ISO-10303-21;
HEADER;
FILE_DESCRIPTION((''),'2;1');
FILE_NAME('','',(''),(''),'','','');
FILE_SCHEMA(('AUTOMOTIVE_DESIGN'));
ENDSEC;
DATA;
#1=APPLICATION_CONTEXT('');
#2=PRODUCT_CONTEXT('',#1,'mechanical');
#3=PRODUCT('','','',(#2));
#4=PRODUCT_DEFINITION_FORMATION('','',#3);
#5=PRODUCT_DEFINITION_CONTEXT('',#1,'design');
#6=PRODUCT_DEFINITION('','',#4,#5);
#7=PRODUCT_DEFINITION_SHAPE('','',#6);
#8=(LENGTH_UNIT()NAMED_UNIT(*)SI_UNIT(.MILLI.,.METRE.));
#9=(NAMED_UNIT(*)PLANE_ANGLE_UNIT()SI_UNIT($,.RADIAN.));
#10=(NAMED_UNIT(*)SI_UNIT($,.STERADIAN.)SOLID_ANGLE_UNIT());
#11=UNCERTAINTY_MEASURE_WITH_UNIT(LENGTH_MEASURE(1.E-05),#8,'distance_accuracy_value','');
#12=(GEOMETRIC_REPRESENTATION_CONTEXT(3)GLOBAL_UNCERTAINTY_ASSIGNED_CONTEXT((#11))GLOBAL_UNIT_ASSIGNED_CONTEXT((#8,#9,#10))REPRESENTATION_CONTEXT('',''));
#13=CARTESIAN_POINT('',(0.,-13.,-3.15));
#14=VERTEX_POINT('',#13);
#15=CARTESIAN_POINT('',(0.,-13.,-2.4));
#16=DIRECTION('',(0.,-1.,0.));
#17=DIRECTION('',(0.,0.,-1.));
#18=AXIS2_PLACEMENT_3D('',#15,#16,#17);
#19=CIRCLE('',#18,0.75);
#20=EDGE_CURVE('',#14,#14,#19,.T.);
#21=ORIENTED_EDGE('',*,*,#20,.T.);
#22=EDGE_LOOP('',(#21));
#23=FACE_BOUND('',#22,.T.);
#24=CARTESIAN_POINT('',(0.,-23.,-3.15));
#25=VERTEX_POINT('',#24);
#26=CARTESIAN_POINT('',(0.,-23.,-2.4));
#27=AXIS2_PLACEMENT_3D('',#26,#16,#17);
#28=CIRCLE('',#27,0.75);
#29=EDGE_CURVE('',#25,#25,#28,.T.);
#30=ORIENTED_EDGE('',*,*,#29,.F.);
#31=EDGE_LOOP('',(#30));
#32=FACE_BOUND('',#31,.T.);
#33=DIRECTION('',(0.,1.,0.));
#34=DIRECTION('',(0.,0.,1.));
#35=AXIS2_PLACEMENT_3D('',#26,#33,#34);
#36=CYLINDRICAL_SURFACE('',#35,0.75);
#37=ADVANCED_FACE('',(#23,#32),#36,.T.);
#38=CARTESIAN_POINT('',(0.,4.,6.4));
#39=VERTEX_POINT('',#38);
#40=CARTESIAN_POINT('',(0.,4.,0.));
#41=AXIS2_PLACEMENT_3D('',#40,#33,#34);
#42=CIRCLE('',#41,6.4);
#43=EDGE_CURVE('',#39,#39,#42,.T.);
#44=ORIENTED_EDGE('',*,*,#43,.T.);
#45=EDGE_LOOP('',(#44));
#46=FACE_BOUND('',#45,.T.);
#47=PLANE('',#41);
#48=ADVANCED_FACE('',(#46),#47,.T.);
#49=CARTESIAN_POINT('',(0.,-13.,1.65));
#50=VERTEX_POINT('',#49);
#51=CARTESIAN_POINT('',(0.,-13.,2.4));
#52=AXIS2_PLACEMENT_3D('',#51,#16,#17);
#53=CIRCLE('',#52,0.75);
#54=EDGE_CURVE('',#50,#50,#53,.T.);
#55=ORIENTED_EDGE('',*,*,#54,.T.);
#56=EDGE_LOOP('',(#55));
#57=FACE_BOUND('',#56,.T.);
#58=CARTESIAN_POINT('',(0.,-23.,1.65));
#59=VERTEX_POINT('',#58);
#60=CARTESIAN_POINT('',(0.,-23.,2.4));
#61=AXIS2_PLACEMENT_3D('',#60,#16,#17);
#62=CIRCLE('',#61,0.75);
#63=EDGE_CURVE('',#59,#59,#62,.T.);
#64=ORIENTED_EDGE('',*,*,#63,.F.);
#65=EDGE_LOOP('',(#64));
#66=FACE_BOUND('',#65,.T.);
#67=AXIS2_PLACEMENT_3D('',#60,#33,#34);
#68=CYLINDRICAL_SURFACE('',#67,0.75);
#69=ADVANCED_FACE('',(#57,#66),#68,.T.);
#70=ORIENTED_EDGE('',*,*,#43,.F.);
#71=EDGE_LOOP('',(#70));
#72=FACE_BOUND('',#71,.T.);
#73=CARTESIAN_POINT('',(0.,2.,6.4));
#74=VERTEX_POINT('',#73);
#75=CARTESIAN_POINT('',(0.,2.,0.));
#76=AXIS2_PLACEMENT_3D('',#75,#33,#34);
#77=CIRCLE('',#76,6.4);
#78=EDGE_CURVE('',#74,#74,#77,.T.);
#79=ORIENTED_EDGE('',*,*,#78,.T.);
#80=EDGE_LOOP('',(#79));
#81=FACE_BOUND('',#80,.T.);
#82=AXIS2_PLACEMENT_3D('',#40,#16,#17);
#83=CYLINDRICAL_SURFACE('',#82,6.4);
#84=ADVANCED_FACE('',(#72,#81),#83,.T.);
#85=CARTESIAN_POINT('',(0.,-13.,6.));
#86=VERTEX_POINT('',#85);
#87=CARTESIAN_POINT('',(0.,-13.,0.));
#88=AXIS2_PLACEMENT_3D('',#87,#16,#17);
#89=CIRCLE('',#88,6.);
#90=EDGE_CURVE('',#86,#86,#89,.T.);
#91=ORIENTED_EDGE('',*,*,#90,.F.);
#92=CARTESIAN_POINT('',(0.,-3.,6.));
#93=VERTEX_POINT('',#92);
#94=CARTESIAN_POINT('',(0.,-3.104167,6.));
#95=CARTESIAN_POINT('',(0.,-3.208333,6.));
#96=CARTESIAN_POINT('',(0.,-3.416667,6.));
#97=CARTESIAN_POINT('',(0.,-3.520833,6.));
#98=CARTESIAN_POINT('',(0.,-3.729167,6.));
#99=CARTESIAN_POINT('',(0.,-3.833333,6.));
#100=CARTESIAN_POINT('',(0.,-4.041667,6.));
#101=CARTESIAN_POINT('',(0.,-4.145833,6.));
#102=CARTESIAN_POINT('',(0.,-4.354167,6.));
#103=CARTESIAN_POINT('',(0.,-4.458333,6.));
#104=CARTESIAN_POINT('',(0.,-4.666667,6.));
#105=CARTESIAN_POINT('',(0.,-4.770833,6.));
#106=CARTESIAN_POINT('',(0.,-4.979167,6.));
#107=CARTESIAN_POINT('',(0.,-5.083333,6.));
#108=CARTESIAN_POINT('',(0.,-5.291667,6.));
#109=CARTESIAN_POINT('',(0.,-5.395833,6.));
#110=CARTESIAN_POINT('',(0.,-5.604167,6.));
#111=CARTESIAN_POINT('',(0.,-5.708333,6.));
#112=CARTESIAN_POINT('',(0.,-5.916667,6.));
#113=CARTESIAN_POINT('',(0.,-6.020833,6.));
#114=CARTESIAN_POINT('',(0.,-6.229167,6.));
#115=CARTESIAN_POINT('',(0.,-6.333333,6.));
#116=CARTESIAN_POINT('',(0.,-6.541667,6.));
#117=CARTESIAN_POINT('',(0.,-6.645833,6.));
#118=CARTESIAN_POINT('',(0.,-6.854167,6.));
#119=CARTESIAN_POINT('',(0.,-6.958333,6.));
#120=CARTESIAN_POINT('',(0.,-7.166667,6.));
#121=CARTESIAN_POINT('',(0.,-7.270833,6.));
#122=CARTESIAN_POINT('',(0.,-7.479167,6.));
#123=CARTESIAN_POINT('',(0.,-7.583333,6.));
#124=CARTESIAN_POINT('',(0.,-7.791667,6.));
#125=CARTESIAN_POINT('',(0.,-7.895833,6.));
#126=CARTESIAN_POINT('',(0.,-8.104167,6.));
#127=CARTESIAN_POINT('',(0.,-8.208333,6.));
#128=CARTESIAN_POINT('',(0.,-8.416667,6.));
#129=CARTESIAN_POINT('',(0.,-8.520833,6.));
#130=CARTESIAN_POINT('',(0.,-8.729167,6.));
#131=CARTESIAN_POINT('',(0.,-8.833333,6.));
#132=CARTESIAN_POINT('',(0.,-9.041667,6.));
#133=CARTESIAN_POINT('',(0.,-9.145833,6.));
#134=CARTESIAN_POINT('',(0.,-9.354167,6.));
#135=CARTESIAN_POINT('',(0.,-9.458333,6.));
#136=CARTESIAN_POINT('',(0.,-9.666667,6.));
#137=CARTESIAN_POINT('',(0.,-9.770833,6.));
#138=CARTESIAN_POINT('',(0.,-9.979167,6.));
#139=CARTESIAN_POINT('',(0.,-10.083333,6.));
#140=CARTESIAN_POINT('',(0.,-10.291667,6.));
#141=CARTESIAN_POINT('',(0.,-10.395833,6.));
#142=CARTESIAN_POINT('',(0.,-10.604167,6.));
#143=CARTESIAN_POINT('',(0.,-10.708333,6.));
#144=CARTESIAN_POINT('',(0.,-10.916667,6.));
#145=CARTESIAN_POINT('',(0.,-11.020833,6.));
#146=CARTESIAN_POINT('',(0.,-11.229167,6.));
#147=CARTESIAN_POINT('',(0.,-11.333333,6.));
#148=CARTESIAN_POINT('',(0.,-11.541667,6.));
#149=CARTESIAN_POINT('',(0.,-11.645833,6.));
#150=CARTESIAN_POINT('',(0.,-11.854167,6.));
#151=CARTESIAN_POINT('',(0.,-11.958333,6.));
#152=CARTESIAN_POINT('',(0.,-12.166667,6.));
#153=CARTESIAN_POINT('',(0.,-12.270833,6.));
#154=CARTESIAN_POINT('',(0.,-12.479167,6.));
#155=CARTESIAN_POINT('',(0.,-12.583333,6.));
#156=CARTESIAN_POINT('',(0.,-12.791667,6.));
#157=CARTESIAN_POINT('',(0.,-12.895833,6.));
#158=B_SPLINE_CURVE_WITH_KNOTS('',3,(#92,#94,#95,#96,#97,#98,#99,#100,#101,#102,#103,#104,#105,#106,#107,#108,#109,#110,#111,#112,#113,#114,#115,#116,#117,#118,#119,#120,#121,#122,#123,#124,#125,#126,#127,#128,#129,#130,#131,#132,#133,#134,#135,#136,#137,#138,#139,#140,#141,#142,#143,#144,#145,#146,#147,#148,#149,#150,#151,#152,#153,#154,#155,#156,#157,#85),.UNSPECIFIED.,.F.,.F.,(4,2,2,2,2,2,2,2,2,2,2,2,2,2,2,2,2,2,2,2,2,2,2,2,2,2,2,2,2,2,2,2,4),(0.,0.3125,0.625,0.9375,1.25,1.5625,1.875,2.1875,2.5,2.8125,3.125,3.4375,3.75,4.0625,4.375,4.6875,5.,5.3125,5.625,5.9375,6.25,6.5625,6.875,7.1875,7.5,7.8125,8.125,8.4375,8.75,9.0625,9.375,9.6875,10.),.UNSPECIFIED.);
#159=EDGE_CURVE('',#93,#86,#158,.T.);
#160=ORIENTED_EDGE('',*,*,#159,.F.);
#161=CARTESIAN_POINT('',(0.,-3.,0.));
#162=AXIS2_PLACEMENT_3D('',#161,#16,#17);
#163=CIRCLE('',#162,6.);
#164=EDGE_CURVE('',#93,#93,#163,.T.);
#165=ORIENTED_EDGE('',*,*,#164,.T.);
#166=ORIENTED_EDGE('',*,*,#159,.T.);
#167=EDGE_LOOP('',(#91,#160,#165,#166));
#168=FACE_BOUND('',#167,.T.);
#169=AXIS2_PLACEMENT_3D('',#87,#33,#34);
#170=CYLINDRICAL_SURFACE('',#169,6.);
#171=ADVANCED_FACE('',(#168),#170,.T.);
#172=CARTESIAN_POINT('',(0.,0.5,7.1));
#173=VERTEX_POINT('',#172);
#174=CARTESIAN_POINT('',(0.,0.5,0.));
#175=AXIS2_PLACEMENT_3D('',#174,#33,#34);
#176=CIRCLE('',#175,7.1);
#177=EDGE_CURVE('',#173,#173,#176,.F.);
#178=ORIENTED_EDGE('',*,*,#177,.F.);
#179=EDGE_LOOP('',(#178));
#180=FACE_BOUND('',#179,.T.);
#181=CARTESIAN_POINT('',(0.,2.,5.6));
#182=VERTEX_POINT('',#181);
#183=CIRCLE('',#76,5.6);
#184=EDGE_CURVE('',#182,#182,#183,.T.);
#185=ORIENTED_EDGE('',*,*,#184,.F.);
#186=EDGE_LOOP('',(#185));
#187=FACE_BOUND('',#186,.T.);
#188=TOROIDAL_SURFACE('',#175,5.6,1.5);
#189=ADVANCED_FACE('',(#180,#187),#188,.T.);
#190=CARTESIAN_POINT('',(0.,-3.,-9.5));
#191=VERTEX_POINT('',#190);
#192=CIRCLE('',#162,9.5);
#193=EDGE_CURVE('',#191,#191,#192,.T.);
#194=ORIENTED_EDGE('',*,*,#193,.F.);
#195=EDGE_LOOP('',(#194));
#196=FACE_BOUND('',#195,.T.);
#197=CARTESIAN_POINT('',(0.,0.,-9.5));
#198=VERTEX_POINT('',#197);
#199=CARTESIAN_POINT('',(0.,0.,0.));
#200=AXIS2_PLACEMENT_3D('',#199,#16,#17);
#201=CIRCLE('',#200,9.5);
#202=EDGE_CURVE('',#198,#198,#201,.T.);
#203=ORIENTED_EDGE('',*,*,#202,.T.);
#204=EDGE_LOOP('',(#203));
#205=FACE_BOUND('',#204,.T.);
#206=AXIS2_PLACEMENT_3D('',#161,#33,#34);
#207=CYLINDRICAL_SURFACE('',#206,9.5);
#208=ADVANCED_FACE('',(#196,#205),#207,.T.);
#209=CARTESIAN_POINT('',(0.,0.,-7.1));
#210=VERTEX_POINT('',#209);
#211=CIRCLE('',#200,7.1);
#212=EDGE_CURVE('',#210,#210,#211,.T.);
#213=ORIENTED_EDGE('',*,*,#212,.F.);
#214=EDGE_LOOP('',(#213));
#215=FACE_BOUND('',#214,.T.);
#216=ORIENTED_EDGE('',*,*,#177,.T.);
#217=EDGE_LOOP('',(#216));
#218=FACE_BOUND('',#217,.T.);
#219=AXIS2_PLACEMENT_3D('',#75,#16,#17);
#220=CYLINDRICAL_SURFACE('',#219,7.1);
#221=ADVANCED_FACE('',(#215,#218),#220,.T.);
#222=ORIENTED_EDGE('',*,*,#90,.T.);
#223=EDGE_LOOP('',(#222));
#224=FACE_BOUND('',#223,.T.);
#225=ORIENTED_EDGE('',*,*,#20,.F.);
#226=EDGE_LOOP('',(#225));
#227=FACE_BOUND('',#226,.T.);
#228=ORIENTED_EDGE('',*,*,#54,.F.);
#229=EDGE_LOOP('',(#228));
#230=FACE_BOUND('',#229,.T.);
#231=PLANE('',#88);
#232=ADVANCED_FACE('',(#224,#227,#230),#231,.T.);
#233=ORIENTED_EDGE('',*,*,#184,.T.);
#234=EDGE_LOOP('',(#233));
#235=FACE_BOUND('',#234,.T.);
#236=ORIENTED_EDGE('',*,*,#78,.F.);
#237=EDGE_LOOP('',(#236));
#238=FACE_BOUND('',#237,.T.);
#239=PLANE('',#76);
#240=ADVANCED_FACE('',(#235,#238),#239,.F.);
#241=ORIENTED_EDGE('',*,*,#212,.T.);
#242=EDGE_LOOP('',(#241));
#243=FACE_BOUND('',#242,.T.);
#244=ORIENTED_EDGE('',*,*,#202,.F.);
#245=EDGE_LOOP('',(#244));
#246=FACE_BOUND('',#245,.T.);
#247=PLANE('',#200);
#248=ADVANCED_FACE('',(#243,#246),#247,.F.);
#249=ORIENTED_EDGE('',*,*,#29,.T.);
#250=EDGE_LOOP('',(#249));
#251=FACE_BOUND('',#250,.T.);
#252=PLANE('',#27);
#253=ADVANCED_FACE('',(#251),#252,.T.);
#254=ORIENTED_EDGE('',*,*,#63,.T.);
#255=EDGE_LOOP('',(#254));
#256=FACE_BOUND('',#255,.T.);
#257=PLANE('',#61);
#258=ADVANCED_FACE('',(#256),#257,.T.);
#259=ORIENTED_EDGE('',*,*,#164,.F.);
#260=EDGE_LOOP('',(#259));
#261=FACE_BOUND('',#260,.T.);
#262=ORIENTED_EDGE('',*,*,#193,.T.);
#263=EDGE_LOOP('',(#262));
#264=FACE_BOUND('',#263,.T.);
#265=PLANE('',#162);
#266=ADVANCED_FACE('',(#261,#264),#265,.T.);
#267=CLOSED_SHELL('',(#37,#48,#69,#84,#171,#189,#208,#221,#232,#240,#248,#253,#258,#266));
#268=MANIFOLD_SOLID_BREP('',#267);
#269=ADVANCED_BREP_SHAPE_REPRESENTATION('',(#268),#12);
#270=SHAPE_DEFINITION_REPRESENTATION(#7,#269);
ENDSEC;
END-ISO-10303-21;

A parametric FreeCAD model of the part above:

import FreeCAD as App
import Part
import Sketcher

V = App.Vector


def edges_at(feature, points):
    """Names of the edges that pass closest to the given points."""
    edges = feature.Shape.Edges
    near = lambda p: min(range(len(edges)), key=lambda i: edges[i].distToShape(Part.Vertex(*p))[0])
    return sorted({f"Edge{near(p) + 1}" for p in points})

doc = App.newDocument("Part")
body = doc.addObject("PartDesign::Body", "Body")

sketch1 = body.newObject("Sketcher::SketchObject", "Sketch")
sketch1.AttachmentSupport = (doc.getObject("XZ_Plane"), [""])
sketch1.MapMode = "FlatFace"
sketch1.addGeometry(Part.Circle(V(0, 0, 0), V(0, 0, 1), 7), False)
sketch1.addConstraint([
    Sketcher.Constraint("Coincident", 0, 3, -1, 1),
    Sketcher.Constraint("Diameter", 0, 14.2),
])
pad1 = body.newObject("PartDesign::Pad", "Pad")
pad1.Profile = sketch1
pad1.Length = 2
pad1.Reversed = True
doc.recompute()

fillet = body.newObject("PartDesign::Fillet", "Fillet")
fillet.Base = (pad1, edges_at(pad1, [(0, 2, -7.1)]))
fillet.Radius = 1.5

sketch2 = body.newObject("Sketcher::SketchObject", "Sketch001")
sketch2.AttachmentSupport = (doc.getObject("XZ_Plane"), [""])
sketch2.MapMode = "FlatFace"
sketch2.AttachmentOffset = App.Placement(V(0, 0, -2), App.Rotation())
sketch2.addGeometry(Part.Circle(V(0, 0, 0), V(0, 0, 1), 6), False)
sketch2.addConstraint([
    Sketcher.Constraint("Coincident", 0, 3, -1, 1),
    Sketcher.Constraint("Diameter", 0, 12.8),
])
pad2 = body.newObject("PartDesign::Pad", "Pad001")
pad2.Profile = sketch2
pad2.Length = 2
pad2.Reversed = True

sketch3 = body.newObject("Sketcher::SketchObject", "Sketch002")
sketch3.AttachmentSupport = (doc.getObject("XZ_Plane"), [""])
sketch3.MapMode = "FlatFace"
sketch3.addGeometry(Part.Circle(V(0, 0, 0), V(0, 0, 1), 6), False)
sketch3.addConstraint([
    Sketcher.Constraint("Coincident", 0, 3, -1, 1),
    Sketcher.Constraint("Diameter", 0, 12.0),
])
pad3 = body.newObject("PartDesign::Pad", "Pad002")
pad3.Profile = sketch3
pad3.Length = 13

sketch4 = body.newObject("Sketcher::SketchObject", "Sketch003")
sketch4.AttachmentSupport = (doc.getObject("XZ_Plane"), [""])
sketch4.MapMode = "FlatFace"
sketch4.AttachmentOffset = App.Placement(V(0, 0, 13), App.Rotation())
sketch4.addGeometry([
    Part.Circle(V(0, -2.4, 0), V(0, 0, 1), 0.8),
    Part.Circle(V(0, 2.4, 0), V(0, 0, 1), 0.8),
], False)
sketch4.addConstraint([
    Sketcher.Constraint("Equal", 0, 1),
    Sketcher.Constraint("Symmetric", 0, 3, 1, 3, -1, 1),
    Sketcher.Constraint("PointOnObject", 0, 3, -2),
    Sketcher.Constraint("Diameter", 0, 1.5),
    Sketcher.Constraint("DistanceY", 0, 3, -1, 1, 2.4),
])
pad4 = body.newObject("PartDesign::Pad", "Pad003")
pad4.Profile = sketch4
pad4.Length = 10

sketch5 = body.newObject("Sketcher::SketchObject", "Sketch004")
sketch5.AttachmentSupport = (doc.getObject("XZ_Plane"), [""])
sketch5.MapMode = "FlatFace"
sketch5.addGeometry([
    Part.Circle(V(0, 0, 0), V(0, 0, 1), 10),
    Part.Circle(V(0, 0, 0), V(0, 0, 1), 6),
], False)
sketch5.addConstraint([
    Sketcher.Constraint("Coincident", 0, 3, -1, 1),
    Sketcher.Constraint("Coincident", 1, 3, -1, 1),
    Sketcher.Constraint("Diameter", 0, 19.0),
    Sketcher.Constraint("Diameter", 1, 12.0),
])
pad5 = body.newObject("PartDesign::Pad", "Pad004")
pad5.Profile = sketch5
pad5.Length = 3

doc.recompute()
